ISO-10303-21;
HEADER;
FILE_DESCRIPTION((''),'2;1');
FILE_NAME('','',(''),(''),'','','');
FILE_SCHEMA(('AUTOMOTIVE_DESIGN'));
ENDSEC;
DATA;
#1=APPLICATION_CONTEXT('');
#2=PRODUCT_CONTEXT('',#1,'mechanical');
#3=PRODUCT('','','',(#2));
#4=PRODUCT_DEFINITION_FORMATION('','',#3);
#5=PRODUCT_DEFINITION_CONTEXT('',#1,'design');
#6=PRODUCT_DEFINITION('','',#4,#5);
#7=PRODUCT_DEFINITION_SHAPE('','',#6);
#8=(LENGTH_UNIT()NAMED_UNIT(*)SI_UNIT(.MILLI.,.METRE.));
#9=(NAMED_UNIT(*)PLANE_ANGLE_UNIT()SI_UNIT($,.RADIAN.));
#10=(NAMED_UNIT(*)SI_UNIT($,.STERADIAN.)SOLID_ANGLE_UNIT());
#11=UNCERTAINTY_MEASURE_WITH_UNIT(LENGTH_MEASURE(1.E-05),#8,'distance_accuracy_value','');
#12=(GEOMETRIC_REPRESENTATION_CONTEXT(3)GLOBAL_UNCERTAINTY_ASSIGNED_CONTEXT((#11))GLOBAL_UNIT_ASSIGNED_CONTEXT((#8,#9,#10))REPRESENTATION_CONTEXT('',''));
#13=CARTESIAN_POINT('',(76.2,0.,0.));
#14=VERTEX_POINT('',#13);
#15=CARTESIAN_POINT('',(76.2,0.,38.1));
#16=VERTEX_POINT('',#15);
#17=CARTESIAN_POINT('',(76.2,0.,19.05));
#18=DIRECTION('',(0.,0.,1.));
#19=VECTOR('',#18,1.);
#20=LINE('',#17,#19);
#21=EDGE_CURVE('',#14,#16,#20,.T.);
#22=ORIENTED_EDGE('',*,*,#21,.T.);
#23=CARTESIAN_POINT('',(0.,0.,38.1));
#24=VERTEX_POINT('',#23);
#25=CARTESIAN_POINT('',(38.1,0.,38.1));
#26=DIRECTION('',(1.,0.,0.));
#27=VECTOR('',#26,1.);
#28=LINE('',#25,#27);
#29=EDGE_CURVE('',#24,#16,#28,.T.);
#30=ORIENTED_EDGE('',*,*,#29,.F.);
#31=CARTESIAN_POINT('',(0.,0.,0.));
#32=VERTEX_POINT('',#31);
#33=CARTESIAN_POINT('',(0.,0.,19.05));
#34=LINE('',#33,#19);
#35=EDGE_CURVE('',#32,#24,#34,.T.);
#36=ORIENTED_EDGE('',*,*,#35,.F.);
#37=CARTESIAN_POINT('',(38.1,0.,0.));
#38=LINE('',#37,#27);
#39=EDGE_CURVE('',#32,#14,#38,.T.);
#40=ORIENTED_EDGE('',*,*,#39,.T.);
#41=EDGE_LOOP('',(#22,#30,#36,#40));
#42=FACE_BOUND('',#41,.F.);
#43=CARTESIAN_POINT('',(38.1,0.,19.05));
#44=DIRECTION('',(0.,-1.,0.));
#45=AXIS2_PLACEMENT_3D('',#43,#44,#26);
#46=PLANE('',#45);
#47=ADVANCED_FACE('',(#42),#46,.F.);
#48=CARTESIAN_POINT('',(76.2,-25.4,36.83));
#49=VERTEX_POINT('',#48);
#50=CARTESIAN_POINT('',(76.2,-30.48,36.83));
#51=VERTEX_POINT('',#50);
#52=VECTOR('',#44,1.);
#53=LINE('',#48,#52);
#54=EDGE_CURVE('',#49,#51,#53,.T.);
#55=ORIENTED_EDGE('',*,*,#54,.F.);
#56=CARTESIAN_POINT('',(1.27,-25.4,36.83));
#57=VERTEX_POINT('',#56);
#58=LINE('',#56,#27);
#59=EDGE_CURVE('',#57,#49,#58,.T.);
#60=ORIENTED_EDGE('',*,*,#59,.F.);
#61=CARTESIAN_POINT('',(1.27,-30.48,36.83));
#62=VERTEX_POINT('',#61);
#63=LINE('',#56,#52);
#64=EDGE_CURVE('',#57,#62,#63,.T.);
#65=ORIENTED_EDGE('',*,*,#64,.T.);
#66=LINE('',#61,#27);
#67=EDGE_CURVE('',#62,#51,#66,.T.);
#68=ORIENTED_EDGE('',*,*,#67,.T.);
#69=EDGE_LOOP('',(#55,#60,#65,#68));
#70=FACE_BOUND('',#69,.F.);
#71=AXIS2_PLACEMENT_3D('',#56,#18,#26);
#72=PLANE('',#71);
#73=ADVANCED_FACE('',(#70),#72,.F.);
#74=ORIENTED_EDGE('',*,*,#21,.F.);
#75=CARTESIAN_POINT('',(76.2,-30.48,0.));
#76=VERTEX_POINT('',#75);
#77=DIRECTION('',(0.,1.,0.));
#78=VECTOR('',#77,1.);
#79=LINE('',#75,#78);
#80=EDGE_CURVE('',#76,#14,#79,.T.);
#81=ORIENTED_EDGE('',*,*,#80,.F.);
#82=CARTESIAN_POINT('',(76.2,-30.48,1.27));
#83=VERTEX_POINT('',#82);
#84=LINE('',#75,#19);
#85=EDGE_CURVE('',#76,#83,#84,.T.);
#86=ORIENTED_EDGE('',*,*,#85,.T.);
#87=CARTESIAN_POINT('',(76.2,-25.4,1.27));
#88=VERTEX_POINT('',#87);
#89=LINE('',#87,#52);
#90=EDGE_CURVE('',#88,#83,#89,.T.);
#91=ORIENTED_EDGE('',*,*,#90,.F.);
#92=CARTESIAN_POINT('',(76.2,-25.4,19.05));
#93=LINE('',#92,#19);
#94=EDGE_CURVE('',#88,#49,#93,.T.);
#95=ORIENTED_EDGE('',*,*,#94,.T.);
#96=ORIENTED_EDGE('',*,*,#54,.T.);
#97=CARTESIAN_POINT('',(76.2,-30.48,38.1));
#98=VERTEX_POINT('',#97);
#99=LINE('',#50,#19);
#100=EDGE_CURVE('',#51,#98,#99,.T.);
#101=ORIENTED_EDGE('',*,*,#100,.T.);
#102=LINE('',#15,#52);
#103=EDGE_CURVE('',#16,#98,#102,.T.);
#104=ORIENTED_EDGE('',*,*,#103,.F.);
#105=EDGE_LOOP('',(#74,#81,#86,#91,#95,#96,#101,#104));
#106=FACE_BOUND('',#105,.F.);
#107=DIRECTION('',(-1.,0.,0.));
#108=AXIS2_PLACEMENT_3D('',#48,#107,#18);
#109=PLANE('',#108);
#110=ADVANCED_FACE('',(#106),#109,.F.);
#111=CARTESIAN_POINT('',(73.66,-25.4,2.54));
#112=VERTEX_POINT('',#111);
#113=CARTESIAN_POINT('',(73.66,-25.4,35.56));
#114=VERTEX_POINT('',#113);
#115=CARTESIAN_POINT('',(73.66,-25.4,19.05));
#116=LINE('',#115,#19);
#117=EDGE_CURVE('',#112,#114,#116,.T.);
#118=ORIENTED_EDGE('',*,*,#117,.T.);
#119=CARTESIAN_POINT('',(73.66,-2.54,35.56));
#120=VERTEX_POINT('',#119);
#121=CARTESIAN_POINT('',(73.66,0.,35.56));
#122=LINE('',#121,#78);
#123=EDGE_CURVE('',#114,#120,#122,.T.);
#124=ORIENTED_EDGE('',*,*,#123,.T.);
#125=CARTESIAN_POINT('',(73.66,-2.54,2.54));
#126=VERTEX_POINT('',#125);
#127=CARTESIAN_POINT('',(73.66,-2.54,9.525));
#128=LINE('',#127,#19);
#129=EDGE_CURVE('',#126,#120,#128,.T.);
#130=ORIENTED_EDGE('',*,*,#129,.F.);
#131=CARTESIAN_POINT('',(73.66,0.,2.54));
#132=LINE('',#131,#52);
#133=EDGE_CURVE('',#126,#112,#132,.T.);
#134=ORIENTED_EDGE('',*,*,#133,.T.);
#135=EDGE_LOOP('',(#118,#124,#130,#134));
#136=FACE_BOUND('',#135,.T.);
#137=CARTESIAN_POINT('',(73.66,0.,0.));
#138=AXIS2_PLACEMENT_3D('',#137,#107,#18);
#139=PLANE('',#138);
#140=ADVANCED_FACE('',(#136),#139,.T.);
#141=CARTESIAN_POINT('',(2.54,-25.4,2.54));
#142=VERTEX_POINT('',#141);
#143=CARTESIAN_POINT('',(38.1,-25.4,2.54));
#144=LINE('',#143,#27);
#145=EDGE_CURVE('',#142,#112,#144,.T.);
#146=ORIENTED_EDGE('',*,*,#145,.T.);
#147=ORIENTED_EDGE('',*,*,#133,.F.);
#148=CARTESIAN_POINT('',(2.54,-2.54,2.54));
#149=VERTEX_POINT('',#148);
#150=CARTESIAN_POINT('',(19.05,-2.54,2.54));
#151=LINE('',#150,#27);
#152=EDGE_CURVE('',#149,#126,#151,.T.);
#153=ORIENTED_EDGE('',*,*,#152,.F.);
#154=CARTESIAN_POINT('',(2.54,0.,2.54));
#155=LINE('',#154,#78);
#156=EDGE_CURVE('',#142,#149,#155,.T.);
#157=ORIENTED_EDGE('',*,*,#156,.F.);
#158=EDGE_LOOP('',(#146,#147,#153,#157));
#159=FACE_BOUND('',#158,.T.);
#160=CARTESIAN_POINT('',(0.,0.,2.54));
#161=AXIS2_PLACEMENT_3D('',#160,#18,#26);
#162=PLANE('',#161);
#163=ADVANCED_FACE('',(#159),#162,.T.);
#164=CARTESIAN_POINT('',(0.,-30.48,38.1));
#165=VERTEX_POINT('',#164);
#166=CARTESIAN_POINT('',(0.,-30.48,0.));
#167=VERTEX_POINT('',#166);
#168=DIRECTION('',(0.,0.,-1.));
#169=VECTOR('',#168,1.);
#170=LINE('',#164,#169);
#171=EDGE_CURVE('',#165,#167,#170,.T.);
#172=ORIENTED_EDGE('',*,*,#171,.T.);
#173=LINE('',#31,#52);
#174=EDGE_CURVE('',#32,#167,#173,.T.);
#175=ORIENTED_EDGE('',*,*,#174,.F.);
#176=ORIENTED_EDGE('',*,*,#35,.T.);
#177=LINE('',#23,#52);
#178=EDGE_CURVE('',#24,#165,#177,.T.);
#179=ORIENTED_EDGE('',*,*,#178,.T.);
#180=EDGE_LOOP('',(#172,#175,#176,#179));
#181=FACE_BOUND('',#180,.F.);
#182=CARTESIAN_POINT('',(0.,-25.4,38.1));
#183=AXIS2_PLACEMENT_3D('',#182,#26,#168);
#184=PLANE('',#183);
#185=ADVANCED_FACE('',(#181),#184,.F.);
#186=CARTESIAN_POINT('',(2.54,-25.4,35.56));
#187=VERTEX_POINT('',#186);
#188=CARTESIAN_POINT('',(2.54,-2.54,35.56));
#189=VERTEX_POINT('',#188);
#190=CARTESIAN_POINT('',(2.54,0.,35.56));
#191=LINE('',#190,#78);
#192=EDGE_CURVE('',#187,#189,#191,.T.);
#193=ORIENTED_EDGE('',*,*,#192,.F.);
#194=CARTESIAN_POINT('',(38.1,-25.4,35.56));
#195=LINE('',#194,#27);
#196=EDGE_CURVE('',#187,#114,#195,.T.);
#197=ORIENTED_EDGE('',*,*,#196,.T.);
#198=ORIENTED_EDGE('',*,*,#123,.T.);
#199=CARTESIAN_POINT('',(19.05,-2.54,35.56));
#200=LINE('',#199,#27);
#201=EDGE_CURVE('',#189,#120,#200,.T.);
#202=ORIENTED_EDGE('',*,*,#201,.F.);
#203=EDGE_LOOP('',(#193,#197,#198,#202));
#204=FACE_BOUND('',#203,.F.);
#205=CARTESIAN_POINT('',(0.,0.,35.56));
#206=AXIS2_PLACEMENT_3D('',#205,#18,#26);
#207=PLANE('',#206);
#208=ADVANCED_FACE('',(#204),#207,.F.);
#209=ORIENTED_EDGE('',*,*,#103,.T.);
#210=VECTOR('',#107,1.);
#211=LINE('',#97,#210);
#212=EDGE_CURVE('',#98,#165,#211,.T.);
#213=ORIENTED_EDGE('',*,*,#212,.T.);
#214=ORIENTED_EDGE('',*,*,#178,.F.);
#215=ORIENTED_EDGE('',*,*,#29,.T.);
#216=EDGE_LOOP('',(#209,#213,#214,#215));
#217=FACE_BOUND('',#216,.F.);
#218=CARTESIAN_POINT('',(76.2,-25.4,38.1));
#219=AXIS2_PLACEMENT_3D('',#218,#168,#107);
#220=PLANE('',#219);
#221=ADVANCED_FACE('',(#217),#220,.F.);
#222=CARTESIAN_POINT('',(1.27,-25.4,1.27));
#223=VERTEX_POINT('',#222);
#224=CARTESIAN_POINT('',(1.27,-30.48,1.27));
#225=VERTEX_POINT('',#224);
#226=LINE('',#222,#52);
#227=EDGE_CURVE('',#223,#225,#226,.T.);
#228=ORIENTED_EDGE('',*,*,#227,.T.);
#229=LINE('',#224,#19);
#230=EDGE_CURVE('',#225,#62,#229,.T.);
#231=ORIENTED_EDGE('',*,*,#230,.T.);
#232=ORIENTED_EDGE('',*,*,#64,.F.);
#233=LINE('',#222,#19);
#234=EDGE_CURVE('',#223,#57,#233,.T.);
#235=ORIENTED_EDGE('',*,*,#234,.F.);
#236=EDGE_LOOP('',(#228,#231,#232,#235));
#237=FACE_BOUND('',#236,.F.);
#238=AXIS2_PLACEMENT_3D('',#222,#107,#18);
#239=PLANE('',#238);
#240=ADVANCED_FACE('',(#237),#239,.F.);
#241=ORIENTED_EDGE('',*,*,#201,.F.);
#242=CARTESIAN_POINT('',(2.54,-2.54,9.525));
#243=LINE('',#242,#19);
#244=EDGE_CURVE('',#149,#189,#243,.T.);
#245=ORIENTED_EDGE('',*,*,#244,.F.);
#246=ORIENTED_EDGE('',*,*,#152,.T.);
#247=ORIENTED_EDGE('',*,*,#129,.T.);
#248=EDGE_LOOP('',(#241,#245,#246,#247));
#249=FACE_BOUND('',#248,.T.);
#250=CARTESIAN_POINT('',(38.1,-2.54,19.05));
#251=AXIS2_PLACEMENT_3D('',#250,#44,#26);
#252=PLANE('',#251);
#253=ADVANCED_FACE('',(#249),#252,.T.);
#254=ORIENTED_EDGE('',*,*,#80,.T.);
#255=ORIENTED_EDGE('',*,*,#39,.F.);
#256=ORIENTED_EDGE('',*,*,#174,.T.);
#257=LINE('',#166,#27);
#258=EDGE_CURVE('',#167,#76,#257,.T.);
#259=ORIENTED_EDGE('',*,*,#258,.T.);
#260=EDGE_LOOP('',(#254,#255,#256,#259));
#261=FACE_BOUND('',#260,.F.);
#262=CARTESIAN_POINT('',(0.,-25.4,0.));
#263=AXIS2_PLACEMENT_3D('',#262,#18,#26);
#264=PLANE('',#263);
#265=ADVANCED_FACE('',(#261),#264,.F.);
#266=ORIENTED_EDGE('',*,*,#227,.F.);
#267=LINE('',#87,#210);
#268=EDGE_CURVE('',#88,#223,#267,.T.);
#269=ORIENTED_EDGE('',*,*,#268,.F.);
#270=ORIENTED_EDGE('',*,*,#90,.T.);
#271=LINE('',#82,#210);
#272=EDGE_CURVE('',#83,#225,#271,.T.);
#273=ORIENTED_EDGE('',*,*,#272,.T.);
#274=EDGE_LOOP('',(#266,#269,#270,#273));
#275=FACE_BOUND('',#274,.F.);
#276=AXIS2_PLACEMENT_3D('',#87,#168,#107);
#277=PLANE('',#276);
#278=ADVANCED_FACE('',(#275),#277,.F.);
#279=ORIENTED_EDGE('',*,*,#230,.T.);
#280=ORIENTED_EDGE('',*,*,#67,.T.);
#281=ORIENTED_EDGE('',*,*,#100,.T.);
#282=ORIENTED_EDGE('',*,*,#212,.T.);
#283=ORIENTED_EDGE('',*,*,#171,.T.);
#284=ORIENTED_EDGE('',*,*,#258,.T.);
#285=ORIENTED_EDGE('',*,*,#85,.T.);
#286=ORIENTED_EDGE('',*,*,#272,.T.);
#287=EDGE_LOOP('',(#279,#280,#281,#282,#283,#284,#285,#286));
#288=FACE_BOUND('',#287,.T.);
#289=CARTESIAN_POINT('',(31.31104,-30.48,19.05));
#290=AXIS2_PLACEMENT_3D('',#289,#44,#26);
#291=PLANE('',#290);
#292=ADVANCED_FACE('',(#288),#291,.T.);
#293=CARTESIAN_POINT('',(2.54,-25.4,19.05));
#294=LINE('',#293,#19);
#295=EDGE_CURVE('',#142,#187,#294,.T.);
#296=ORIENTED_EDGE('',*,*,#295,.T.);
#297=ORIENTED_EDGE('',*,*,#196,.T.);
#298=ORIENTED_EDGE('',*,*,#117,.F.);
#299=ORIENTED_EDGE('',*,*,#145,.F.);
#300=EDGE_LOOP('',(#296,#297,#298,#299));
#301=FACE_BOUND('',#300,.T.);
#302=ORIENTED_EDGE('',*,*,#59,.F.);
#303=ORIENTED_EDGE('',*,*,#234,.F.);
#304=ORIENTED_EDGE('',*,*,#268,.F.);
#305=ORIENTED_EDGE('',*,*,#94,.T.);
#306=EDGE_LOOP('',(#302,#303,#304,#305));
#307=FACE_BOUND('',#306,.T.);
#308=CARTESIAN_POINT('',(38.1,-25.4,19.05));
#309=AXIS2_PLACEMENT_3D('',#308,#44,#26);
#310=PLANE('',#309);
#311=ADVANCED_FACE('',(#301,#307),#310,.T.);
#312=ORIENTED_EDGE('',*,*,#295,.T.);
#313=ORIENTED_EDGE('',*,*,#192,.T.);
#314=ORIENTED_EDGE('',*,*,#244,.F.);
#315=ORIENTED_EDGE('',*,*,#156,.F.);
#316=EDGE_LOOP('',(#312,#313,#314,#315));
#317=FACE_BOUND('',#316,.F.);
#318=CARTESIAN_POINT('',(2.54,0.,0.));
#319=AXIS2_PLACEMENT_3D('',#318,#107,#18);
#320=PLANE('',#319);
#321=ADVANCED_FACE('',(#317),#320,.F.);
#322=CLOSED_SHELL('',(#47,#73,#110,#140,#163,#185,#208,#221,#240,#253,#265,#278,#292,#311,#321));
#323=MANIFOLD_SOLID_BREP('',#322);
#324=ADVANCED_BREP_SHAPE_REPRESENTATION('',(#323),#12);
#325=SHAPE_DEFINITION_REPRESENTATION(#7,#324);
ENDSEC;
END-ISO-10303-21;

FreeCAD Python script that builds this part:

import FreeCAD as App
import Part
import Sketcher

V = App.Vector
Q = App.Units.Quantity


def faces_at(feature, points):
    """Names of the faces that lie closest to the given points."""
    faces = feature.Shape.Faces
    near = lambda p: min(range(len(faces)), key=lambda i: faces[i].distToShape(Part.Vertex(*p))[0])
    return sorted({f"Face{near(p) + 1}" for p in points})

doc = App.newDocument("Part")
params = doc.addObject("Spreadsheet::Sheet", "Params")
for row, (alias, value) in enumerate([
    ("sketch1_width", "3 in"),
    ("sketch1_height", "1.5 in"),
    ("pad1_length", "1 in"),
    ("thickness_wall", "0.1 in"),
    ("sketch2_width", "3 in"),
    ("sketch2_height", "1.5 in"),
    ("sketch2_height2", "1.4 in"),
    ("sketch2_width2", "2.95 in"),
    ("pad2_length", "0.2 in"),
], start=1):
    params.set(f"A{row}", alias)
    params.set(f"B{row}", "=" + value)
    params.setAlias(f"B{row}", alias)

body = doc.addObject("PartDesign::Body", "Body")

# Sketch on XZ plane
sketch1 = body.newObject("Sketcher::SketchObject", "Sketch")
sketch1.AttachmentSupport = (doc.getObject("XZ_Plane"), [""])
sketch1.MapMode = "FlatFace"
sketch1.addGeometry([
    Part.LineSegment(V(0, 38, 0), V(0, 0, 0)),
    Part.LineSegment(V(0, 0, 0), V(76, 0, 0)),
    Part.LineSegment(V(76, 0, 0), V(76, 38, 0)),
    Part.LineSegment(V(76, 38, 0), V(0, 38, 0)),
], False)
sketch1.addConstraint([
    Sketcher.Constraint("Coincident", 0, 2, 1, 1),
    Sketcher.Constraint("Coincident", 1, 2, 2, 1),
    Sketcher.Constraint("Coincident", 2, 2, 3, 1),
    Sketcher.Constraint("Coincident", 3, 2, 0, 1),
    Sketcher.Constraint("Vertical", 0),
    Sketcher.Constraint("Horizontal", 1),
    Sketcher.Constraint("Vertical", 2),
    Sketcher.Constraint("Horizontal", 3),
    Sketcher.Constraint("Coincident", 0, 2, -1, 1),
    Sketcher.Constraint("DistanceX", 1, 1, 1, 2, Q("3 in")),
    Sketcher.Constraint("DistanceY", 0, 2, 0, 1, Q("1.5 in")),
])
sketch1.setExpression("Constraints[9]", "Params.sketch1_width")
sketch1.setExpression("Constraints[10]", "Params.sketch1_height")
pad1 = body.newObject("PartDesign::Pad", "Pad")
pad1.Profile = sketch1
pad1.setExpression("Length", "Params.pad1_length")
doc.recompute()

thickness = body.newObject("PartDesign::Thickness", "Thickness")
thickness.Base = (pad1, faces_at(pad1, [(38.1, -25.4, 19.05)]))
thickness.setExpression("Value", "Params.thickness_wall")
thickness.Reversed = True
thickness.Join = "Arc"

# Sketch on XZ plane
sketch2 = body.newObject("Sketcher::SketchObject", "Sketch001")
sketch2.AttachmentSupport = (doc.getObject("XZ_Plane"), [""])
sketch2.MapMode = "FlatFace"
sketch2.AttachmentOffset = App.Placement(V(0, 0, 1 * 25.4), App.Rotation())
sketch2.addGeometry([
    Part.LineSegment(V(1.3, 36.8, 0), V(76.2, 36.8, 0)),  # 0
    Part.LineSegment(V(76.2, 36.8, 0), V(76.2, 38.1, 0)),  # 1
    Part.LineSegment(V(76.2, 38.1, 0), V(0, 38.1, 0)),  # 2
    Part.LineSegment(V(0, 38.1, 0), V(0, 0, 0)),  # 3
    Part.LineSegment(V(0, 0, 0), V(76.2, 0, 0)),  # 4
    Part.LineSegment(V(76.2, 0, 0), V(76.2, 1.3, 0)),  # 5
    Part.LineSegment(V(76.2, 1.3, 0), V(1.3, 1.3, 0)),  # 6
    Part.LineSegment(V(1.3, 1.3, 0), V(1.3, 36.8, 0)),  # 7
], False)
sketch2.addConstraint([
    Sketcher.Constraint("Coincident", 0, 2, 1, 1),
    Sketcher.Constraint("Coincident", 1, 2, 2, 1),
    Sketcher.Constraint("Coincident", 2, 2, 3, 1),
    Sketcher.Constraint("Coincident", 3, 2, 4, 1),
    Sketcher.Constraint("Coincident", 4, 2, 5, 1),
    Sketcher.Constraint("Coincident", 5, 2, 6, 1),
    Sketcher.Constraint("Coincident", 6, 2, 7, 1),
    Sketcher.Constraint("Coincident", 7, 2, 0, 1),
    Sketcher.Constraint("Horizontal", 0),
    Sketcher.Constraint("Vertical", 1),
    Sketcher.Constraint("Horizontal", 2),
    Sketcher.Constraint("Vertical", 3),
    Sketcher.Constraint("Horizontal", 4),
    Sketcher.Constraint("Vertical", 5),
    Sketcher.Constraint("Horizontal", 6),
    Sketcher.Constraint("Vertical", 7),
    Sketcher.Constraint("Coincident", 3, 2, -1, 1),
    Sketcher.Constraint("Vertical", 1, 2, 4, 2),
    Sketcher.Constraint("Equal", 1, 5),
    Sketcher.Constraint("DistanceX", 2, 2, 2, 1, Q("3 in")),
    Sketcher.Constraint("DistanceY", 3, 2, 3, 1, Q("1.5 in")),
    Sketcher.Constraint("DistanceY", 7, 1, 7, 2, Q("1.4 in")),
    Sketcher.Constraint("DistanceX", 0, 1, 0, 2, Q("2.95 in")),
])
sketch2.setExpression("Constraints[19]", "Params.sketch2_width")
sketch2.setExpression("Constraints[20]", "Params.sketch2_height")
sketch2.setExpression("Constraints[21]", "Params.sketch2_height2")
sketch2.setExpression("Constraints[22]", "Params.sketch2_width2")
pad2 = body.newObject("PartDesign::Pad", "Pad001")
pad2.Profile = sketch2
pad2.setExpression("Length", "Params.pad2_length")

doc.recompute()
